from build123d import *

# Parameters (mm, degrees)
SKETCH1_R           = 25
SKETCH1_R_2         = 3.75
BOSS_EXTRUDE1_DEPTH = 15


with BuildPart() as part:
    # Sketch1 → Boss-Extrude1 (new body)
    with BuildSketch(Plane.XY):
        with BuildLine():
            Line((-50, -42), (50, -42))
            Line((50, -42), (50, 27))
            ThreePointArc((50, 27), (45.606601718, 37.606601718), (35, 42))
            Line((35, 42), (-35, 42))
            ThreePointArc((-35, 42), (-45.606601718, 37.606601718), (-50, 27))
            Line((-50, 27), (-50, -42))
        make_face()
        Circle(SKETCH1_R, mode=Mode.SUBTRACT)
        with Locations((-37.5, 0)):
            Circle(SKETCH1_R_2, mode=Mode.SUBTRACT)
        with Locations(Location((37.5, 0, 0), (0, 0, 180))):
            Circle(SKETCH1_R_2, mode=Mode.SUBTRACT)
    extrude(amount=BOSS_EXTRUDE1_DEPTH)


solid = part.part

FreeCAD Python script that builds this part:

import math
import FreeCAD as App
import Part
import Sketcher
from FreeCAD import Vector
Q = App.Units.Quantity

doc = App.newDocument("Part")
body = doc.addObject("PartDesign::Body", "Body")

sketch1 = doc.addObject("Sketcher::SketchObject", "Sketch")
body.addObject(sketch1)
sketch1.AttachmentSupport = (doc.XY_Plane, [""])
sketch1.MapMode = "FlatFace"
sketch1.addGeometry(Part.LineSegment(Vector(-50, -42, 0), Vector(50, -42, 0)), False)
sketch1.addGeometry(Part.LineSegment(Vector(50, -42, 0), Vector(50, 27, 0)), False)
sketch1.addGeometry(Part.ArcOfCircle(Part.Circle(Vector(35, 27, 0), Vector(0, 0, 1), 15), math.radians(0), math.radians(90)), False)
sketch1.addGeometry(Part.LineSegment(Vector(35, 42, 0), Vector(-35, 42, 0)), False)
sketch1.addGeometry(Part.ArcOfCircle(Part.Circle(Vector(-35, 27, 0), Vector(0, 0, 1), 15), math.radians(90), math.radians(180)), False)
sketch1.addGeometry(Part.LineSegment(Vector(-50, 27, 0), Vector(-50, -42, 0)), False)
sketch1.addGeometry(Part.Circle(Vector(-37.5, 0, 0), Vector(0, 0, 1), 3.8), False)
sketch1.addGeometry(Part.Circle(Vector(0, 0, 0), Vector(0, 0, 1), 25), False)
sketch1.addGeometry(Part.Circle(Vector(37.5, 0, 0), Vector(0, 0, 1), 3.8), False)
sketch1.addConstraint(Sketcher.Constraint("Coincident", 0, 2, 1, 1))
sketch1.addConstraint(Sketcher.Constraint("Tangent", 1, 2, 2, 1))
sketch1.addConstraint(Sketcher.Constraint("Tangent", 2, 2, 3, 1))
sketch1.addConstraint(Sketcher.Constraint("Tangent", 3, 2, 4, 1))
sketch1.addConstraint(Sketcher.Constraint("Tangent", 4, 2, 5, 1))
sketch1.addConstraint(Sketcher.Constraint("Coincident", 5, 2, 0, 1))
sketch1.addConstraint(Sketcher.Constraint("Horizontal", 0))
sketch1.addConstraint(Sketcher.Constraint("Vertical", 1))
sketch1.addConstraint(Sketcher.Constraint("Horizontal", 3))
sketch1.addConstraint(Sketcher.Constraint("Vertical", 5))
sketch1.addConstraint(Sketcher.Constraint("Coincident", 7, 3, -1, 1))
sketch1.addConstraint(Sketcher.Constraint("Equal", 2, 4))
sketch1.addConstraint(Sketcher.Constraint("Equal", 6, 8))
sketch1.addConstraint(Sketcher.Constraint("Symmetric", 6, 3, 8, 3, -1, 1))
sketch1.addConstraint(Sketcher.Constraint("PointOnObject", 6, 3, -1))
sketch1.addConstraint(Sketcher.Constraint("Diameter", 7, Q("50 mm")))
sketch1.addConstraint(Sketcher.Constraint("Radius", 2, Q("15 mm")))
sketch1.addConstraint(Sketcher.Constraint("Diameter", 6, Q("7.5 mm")))
sketch1.addConstraint(Sketcher.Constraint("DistanceX", 0, 1, 0, 2, Q("100 mm")))
sketch1.addConstraint(Sketcher.Constraint("DistanceY", 1, 1, 1, 2, Q("69 mm")))
sketch1.addConstraint(Sketcher.Constraint("DistanceX", -1, 1, 2, 3, Q("35 mm")))
sketch1.addConstraint(Sketcher.Constraint("DistanceY", -1, 1, 2, 3, Q("27 mm")))
sketch1.addConstraint(Sketcher.Constraint("DistanceX", 6, 3, 8, 3, Q("75 mm")))
pad1 = doc.addObject("PartDesign::Pad", "Pad")
body.addObject(pad1)
pad1.Profile = sketch1
pad1.Length = 15

doc.recompute()
